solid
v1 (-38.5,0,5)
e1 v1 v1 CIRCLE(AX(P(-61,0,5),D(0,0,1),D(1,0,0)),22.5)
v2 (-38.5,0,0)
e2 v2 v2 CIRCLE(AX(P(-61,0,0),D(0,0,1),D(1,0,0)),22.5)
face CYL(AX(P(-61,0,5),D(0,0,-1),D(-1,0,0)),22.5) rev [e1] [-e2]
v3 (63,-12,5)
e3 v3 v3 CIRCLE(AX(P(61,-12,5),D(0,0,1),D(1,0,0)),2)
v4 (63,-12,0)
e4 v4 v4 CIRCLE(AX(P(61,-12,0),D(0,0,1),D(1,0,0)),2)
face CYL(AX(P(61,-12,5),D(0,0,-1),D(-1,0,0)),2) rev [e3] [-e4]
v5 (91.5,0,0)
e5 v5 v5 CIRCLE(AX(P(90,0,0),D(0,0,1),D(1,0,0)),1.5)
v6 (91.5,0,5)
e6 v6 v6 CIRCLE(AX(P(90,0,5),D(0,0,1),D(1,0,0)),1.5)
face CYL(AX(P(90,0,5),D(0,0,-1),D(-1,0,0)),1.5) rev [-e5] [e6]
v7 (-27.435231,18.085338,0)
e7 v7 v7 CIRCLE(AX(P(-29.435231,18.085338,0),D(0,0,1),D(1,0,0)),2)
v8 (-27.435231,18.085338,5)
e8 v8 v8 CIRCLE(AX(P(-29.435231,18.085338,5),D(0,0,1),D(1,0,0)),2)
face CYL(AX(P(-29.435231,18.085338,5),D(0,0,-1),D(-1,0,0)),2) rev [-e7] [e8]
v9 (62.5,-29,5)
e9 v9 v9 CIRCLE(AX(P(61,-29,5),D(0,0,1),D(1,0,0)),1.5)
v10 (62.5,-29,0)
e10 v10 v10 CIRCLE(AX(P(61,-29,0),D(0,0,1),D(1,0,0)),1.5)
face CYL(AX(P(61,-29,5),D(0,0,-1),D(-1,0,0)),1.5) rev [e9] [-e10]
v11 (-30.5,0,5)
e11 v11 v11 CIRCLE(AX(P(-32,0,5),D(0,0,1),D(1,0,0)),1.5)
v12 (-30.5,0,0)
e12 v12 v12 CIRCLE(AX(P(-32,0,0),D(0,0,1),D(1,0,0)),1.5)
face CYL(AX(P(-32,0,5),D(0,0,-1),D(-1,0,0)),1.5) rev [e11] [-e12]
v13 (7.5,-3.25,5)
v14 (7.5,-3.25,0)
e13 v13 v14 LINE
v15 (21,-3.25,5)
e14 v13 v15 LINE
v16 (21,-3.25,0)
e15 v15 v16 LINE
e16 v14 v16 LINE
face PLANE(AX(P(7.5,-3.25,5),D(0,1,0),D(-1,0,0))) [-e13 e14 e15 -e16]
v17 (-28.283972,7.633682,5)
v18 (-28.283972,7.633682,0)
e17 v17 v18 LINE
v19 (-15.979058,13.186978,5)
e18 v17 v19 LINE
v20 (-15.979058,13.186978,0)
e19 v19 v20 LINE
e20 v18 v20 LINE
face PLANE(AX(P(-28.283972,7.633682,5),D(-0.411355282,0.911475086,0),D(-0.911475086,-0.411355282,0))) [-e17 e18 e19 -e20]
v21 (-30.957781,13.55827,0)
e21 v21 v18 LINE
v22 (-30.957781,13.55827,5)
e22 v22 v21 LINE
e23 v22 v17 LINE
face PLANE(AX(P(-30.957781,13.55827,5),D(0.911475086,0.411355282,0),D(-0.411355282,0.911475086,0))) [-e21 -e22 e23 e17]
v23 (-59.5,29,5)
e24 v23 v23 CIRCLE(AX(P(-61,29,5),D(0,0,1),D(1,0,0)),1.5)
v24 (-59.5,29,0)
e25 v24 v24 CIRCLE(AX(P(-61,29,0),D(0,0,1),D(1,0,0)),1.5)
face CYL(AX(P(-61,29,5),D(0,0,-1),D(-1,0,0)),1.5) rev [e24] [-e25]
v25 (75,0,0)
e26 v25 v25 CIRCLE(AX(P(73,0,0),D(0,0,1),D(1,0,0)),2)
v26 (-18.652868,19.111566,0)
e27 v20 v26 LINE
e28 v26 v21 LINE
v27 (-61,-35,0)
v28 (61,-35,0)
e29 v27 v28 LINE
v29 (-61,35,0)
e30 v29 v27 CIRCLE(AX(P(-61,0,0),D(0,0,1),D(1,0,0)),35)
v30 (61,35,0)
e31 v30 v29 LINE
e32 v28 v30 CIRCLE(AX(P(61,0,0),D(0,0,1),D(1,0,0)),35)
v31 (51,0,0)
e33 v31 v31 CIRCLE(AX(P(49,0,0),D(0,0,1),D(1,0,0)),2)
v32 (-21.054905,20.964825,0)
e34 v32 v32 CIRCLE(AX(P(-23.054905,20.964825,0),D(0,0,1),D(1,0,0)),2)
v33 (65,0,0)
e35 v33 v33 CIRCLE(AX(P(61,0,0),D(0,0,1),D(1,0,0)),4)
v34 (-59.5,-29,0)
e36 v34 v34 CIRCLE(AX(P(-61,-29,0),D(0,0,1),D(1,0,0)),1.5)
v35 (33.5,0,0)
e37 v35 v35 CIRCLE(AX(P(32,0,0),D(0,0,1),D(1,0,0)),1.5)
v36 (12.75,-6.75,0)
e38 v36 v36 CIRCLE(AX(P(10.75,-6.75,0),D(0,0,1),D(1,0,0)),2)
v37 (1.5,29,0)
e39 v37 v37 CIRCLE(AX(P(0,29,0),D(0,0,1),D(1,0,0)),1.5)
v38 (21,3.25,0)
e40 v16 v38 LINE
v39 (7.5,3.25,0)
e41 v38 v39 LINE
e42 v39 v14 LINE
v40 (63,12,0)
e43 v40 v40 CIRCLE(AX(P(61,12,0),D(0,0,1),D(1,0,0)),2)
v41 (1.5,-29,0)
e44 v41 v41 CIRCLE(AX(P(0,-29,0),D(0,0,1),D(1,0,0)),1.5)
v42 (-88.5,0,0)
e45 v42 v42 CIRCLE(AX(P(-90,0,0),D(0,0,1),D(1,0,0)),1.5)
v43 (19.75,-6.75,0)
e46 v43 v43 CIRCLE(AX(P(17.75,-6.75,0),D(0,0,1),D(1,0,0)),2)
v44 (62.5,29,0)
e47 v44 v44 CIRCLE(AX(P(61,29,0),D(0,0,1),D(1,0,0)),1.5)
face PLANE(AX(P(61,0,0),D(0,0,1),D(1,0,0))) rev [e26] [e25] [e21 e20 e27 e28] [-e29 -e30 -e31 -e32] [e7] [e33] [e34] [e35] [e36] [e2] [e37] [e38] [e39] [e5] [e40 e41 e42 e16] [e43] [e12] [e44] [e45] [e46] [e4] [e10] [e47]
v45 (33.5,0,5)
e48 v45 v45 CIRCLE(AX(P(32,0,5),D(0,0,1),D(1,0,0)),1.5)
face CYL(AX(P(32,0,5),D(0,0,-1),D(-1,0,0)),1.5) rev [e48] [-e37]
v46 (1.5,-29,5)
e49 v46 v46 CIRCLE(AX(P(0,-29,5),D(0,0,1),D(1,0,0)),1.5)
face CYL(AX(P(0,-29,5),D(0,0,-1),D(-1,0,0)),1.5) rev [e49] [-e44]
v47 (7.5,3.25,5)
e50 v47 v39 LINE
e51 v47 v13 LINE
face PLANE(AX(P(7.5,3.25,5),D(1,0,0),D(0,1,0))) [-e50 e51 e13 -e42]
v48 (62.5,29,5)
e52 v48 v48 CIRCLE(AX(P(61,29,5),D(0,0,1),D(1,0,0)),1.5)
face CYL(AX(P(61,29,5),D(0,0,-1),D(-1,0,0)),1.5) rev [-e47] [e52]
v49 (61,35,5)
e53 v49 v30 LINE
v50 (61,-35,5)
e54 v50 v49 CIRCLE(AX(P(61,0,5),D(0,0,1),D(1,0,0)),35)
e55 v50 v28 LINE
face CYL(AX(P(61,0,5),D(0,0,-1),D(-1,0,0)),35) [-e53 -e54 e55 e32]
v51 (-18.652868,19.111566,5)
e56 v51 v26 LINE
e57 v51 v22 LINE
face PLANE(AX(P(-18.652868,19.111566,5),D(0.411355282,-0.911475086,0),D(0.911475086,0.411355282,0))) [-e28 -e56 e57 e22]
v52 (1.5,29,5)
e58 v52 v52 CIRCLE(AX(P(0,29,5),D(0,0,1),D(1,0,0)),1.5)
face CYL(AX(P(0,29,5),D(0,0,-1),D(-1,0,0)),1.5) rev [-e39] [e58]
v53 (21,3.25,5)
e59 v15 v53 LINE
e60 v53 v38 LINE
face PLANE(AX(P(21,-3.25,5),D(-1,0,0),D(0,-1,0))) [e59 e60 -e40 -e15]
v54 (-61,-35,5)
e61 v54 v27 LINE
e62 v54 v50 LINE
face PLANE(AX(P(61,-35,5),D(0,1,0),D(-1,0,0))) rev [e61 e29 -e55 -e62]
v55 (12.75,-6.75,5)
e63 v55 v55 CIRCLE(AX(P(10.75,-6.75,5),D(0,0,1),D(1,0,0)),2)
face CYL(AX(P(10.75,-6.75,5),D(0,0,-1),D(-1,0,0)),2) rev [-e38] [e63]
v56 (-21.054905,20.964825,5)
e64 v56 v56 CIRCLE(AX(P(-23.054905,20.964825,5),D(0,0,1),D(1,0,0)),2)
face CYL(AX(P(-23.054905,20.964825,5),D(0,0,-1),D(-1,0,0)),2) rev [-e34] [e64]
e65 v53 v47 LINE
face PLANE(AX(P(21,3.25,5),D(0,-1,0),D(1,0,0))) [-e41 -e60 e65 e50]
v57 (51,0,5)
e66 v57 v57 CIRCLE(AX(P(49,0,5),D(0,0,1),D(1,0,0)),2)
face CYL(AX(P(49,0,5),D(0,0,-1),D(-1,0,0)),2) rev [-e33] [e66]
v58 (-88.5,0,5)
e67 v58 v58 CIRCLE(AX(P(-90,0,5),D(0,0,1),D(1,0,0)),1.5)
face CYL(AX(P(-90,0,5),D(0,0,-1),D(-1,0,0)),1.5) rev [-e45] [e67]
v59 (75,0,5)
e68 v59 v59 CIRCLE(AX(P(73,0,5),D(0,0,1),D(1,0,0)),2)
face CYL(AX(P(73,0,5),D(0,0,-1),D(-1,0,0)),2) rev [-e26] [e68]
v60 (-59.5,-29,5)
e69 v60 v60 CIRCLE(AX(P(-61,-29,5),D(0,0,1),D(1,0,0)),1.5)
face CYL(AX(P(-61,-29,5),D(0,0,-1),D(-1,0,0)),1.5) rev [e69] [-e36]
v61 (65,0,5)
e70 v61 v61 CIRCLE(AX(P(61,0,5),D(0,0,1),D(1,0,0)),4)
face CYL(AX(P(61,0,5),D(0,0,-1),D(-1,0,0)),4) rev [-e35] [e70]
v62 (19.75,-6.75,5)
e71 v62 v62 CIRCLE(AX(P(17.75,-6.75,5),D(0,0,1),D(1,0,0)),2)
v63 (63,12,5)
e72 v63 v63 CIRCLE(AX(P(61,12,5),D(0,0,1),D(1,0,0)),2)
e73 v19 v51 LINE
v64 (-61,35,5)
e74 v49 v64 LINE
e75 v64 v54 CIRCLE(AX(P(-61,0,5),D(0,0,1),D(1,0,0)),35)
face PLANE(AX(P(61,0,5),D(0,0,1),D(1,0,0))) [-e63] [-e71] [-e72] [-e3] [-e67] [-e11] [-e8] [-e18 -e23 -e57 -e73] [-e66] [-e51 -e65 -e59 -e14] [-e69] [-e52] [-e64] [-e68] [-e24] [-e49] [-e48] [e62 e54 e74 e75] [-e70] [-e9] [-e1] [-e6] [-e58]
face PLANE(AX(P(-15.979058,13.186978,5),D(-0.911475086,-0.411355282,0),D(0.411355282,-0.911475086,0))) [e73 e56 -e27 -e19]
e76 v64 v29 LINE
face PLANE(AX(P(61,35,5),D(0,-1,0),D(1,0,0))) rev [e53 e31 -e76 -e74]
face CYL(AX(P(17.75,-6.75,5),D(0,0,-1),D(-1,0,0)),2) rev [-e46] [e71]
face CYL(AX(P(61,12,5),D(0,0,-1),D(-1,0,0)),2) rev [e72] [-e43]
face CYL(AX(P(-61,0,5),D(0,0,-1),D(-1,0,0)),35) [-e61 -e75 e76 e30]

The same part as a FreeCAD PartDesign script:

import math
import FreeCAD as App
import Part
import Sketcher

V = App.Vector
Q = App.Units.Quantity


def add_polygon(sketch, points):
    """Adds a closed chain of lines whose ends are joined by coincident constraints."""
    first, n = sketch.GeometryCount, len(points)
    for a, b in zip(points, points[1:] + points[:1]):
        sketch.addGeometry(Part.LineSegment(App.Vector(*a, 0), App.Vector(*b, 0)), False)
    for i in range(n):
        sketch.addConstraint(Sketcher.Constraint("Coincident", first + i, 2, first + (i + 1) % n, 1))

doc = App.newDocument("Part")
body = doc.addObject("PartDesign::Body", "Body")

# Sketch on XY plane
sketch1 = doc.addObject("Sketcher::SketchObject", "Sketch")
body.addObject(sketch1)
sketch1.AttachmentSupport = (doc.XY_Plane, [""])
sketch1.MapMode = "FlatFace"
sketch1.addGeometry(Part.LineSegment(V(-61, -35, 0), V(61, -35, 0)), False)  # 0
sketch1.addGeometry(Part.ArcOfCircle(Part.Circle(V(61, 0, 0), V(0, 0, 1), 35), math.radians(-90), math.radians(90)), False)  # 1
sketch1.addGeometry(Part.LineSegment(V(61, 35, 0), V(-61, 35, 0)), False)  # 2
sketch1.addGeometry(Part.ArcOfCircle(Part.Circle(V(-61, 0, 0), V(0, 0, 1), 35), math.radians(90), math.radians(270)), False)  # 3
sketch1.addGeometry(Part.Circle(V(61, -29, 0), V(0, 0, 1), 1.5), False)  # 4
sketch1.addGeometry(Part.Circle(V(61, -12, 0), V(0, 0, 1), 2), False)  # 5
sketch1.addGeometry(Part.Circle(V(17.8, -6.8, 0), V(0, 0, 1), 2), False)  # 6
sketch1.addGeometry(Part.Circle(V(10.8, -6.8, 0), V(0, 0, 1), 2), False)  # 7
sketch1.addGeometry(Part.Circle(V(0, -29, 0), V(0, 0, 1), 1.5), False)  # 8
sketch1.addGeometry(Part.Circle(V(-61, -29, 0), V(0, 0, 1), 1.5), False)  # 9
sketch1.addGeometry(Part.Circle(V(90, 0, 0), V(0, 0, 1), 1.5), False)  # 10
sketch1.addGeometry(Part.Circle(V(73, 0, 0), V(0, 0, 1), 2), False)  # 11
sketch1.addGeometry(Part.Circle(V(61, 0, 0), V(0, 0, 1), 4), False)  # 12
sketch1.addGeometry(Part.Circle(V(49, 0, 0), V(0, 0, 1), 2), False)  # 13
sketch1.addGeometry(Part.Circle(V(61, 12, 0), V(0, 0, 1), 2), False)  # 14
sketch1.addGeometry(Part.Circle(V(32, 0, 0), V(0, 0, 1), 1.5), False)  # 15
add_polygon(sketch1, [(7.5, -3.2), (7.5, 3.2), (21, 3.2), (21, -3.2)])  # lines 16-19
sketch1.addGeometry(Part.Circle(V(61, 29, 0), V(0, 0, 1), 1.5), False)  # 20
sketch1.addGeometry(Part.Circle(V(-32, 0, 0), V(0, 0, 1), 1.5), False)  # 21
add_polygon(sketch1, [(-31, 13.6), (-18.7, 19.1), (-16, 13.2), (-28.3, 7.6)])  # lines 22-25
sketch1.addGeometry(Part.Circle(V(-61, 0, 0), V(0, 0, 1), 22.5), False)  # 26
sketch1.addGeometry(Part.Circle(V(-90, 0, 0), V(0, 0, 1), 1.5), False)  # 27
sketch1.addGeometry(Part.Circle(V(-29.4, 18.1, 0), V(0, 0, 1), 2), False)  # 28
sketch1.addGeometry(Part.Circle(V(-23.1, 21, 0), V(0, 0, 1), 2), False)  # 29
sketch1.addGeometry(Part.Circle(V(0, 29, 0), V(0, 0, 1), 1.5), False)  # 30
sketch1.addGeometry(Part.Circle(V(-61, 29, 0), V(0, 0, 1), 1.5), False)  # 31
sketch1.addConstraint([
    Sketcher.Constraint("Tangent", 0, 2, 1, 1),
    Sketcher.Constraint("Tangent", 1, 2, 2, 1),
    Sketcher.Constraint("Tangent", 2, 2, 3, 1),
    Sketcher.Constraint("Tangent", 3, 2, 0, 1),
    Sketcher.Constraint("Horizontal", 0),
    Sketcher.Constraint("Horizontal", 2),
    Sketcher.Constraint("Vertical", 16),
    Sketcher.Constraint("Horizontal", 17),
    Sketcher.Constraint("Vertical", 18),
    Sketcher.Constraint("Horizontal", 19),
    Sketcher.Constraint("Coincident", 12, 3, 1, 3),
    Sketcher.Constraint("Coincident", 26, 3, 3, 3),
    Sketcher.Constraint("Equal", 5, 6),
    Sketcher.Constraint("Equal", 6, 7),
    Sketcher.Constraint("Equal", 4, 8),
    Sketcher.Constraint("Equal", 8, 9),
    Sketcher.Constraint("Equal", 9, 10),
    Sketcher.Constraint("Equal", 7, 11),
    Sketcher.Constraint("Equal", 11, 13),
    Sketcher.Constraint("Equal", 13, 14),
    Sketcher.Constraint("Equal", 10, 15),
    Sketcher.Constraint("Equal", 15, 20),
    Sketcher.Constraint("Equal", 20, 21),
    Sketcher.Constraint("Equal", 21, 27),
    Sketcher.Constraint("Equal", 14, 28),
    Sketcher.Constraint("Equal", 28, 29),
    Sketcher.Constraint("Equal", 27, 30),
    Sketcher.Constraint("Equal", 30, 31),
    Sketcher.Constraint("Symmetric", 1, 3, 3, 3, -1, 1),
    Sketcher.Constraint("Symmetric", 9, 3, 20, 3, -1, 1),
    Sketcher.Constraint("Symmetric", 15, 3, 21, 3, -1, 1),
    Sketcher.Constraint("Symmetric", 10, 3, 27, 3, -1, 1),
    Sketcher.Constraint("Symmetric", 8, 3, 30, 3, -1, 1),
    Sketcher.Constraint("Symmetric", 4, 3, 31, 3, -1, 1),
    Sketcher.Constraint("Symmetric", 4, 3, 9, 3, -2),
    Sketcher.Constraint("Symmetric", 5, 3, 14, 3, -1),
    Sketcher.Constraint("PointOnObject", 8, 3, -2),
    Sketcher.Constraint("PointOnObject", 10, 3, -1),
    Sketcher.Constraint("PointOnObject", 11, 3, -1),
    Sketcher.Constraint("PointOnObject", 13, 3, -1),
    Sketcher.Constraint("PointOnObject", 15, 3, -1),
    Sketcher.Constraint("Perpendicular", 22, 23),
    Sketcher.Constraint("Perpendicular", 23, 24),
    Sketcher.Constraint("Perpendicular", 24, 25),
    Sketcher.Constraint("Horizontal", 6, 3, 7, 3),
    Sketcher.Constraint("Horizontal", 4, 3, 8, 3),
    Sketcher.Constraint("Vertical", 1, 3, 4, 3),
    Sketcher.Constraint("Vertical", 4, 3, 5, 3),
    Sketcher.Constraint("Diameter", 4, 3.0),
    Sketcher.Constraint("Diameter", 5, 4.0),
    Sketcher.Constraint("Diameter", 12, 8.0),
    Sketcher.Constraint("Diameter", 26, 45.0),
    Sketcher.Constraint("Radius", 1, 35.0),
    Sketcher.Constraint("DistanceX", 0, 1, 0, 2, 122.0),
    Sketcher.Constraint("DistanceX", 17, 1, 17, 2, 13.5),
    Sketcher.Constraint("DistanceY", 16, 1, 16, 2, 6.5),
    Sketcher.Constraint("DistanceY", 4, 3, -1, 1, 29.0),
    Sketcher.Constraint("DistanceY", 5, 3, -1, 1, 12.0),
    Sketcher.Constraint("DistanceX", -1, 1, 10, 3, 90.0),
    Sketcher.Constraint("DistanceX", -1, 1, 11, 3, 73.0),
    Sketcher.Constraint("DistanceX", -1, 1, 13, 3, 49.0),
    Sketcher.Constraint("DistanceX", -1, 1, 15, 3, 32.0),
    Sketcher.Constraint("DistanceX", -1, 1, 17, 2, 21.0),
    Sketcher.Constraint("DistanceX", 7, 3, 6, 3, 7.0),
    Sketcher.Constraint("DistanceY", 7, 3, 16, 2, 10.0),
    Sketcher.Constraint("Distance", 22, 13.5),
    Sketcher.Constraint("Distance", 23, 6.5),
    Sketcher.Constraint("Angle", 22, Q("24.29 deg")),
    Sketcher.Constraint("DistanceX", -1, 1, 6, 3, 17.75),
    Sketcher.Constraint("DistanceY", 6, 3, -1, 1, 6.75),
    Sketcher.Constraint("DistanceX", 28, 3, -1, 1, 29.435231),
    Sketcher.Constraint("DistanceX", 23, 2, -1, 1, 15.979058),
    Sketcher.Constraint("DistanceY", -1, 1, 23, 2, 13.186978),
    Sketcher.Constraint("DistanceY", 22, 2, 29, 3, 1.853258),
    Sketcher.Constraint("DistanceY", 28, 3, 22, 2, 1.026229),
    Sketcher.Constraint("DistanceX", 29, 3, -1, 1, 23.054905),
])
pad1 = doc.addObject("PartDesign::Pad", "Pad")
body.addObject(pad1)
pad1.Profile = sketch1
pad1.Length = 5

doc.recompute()
